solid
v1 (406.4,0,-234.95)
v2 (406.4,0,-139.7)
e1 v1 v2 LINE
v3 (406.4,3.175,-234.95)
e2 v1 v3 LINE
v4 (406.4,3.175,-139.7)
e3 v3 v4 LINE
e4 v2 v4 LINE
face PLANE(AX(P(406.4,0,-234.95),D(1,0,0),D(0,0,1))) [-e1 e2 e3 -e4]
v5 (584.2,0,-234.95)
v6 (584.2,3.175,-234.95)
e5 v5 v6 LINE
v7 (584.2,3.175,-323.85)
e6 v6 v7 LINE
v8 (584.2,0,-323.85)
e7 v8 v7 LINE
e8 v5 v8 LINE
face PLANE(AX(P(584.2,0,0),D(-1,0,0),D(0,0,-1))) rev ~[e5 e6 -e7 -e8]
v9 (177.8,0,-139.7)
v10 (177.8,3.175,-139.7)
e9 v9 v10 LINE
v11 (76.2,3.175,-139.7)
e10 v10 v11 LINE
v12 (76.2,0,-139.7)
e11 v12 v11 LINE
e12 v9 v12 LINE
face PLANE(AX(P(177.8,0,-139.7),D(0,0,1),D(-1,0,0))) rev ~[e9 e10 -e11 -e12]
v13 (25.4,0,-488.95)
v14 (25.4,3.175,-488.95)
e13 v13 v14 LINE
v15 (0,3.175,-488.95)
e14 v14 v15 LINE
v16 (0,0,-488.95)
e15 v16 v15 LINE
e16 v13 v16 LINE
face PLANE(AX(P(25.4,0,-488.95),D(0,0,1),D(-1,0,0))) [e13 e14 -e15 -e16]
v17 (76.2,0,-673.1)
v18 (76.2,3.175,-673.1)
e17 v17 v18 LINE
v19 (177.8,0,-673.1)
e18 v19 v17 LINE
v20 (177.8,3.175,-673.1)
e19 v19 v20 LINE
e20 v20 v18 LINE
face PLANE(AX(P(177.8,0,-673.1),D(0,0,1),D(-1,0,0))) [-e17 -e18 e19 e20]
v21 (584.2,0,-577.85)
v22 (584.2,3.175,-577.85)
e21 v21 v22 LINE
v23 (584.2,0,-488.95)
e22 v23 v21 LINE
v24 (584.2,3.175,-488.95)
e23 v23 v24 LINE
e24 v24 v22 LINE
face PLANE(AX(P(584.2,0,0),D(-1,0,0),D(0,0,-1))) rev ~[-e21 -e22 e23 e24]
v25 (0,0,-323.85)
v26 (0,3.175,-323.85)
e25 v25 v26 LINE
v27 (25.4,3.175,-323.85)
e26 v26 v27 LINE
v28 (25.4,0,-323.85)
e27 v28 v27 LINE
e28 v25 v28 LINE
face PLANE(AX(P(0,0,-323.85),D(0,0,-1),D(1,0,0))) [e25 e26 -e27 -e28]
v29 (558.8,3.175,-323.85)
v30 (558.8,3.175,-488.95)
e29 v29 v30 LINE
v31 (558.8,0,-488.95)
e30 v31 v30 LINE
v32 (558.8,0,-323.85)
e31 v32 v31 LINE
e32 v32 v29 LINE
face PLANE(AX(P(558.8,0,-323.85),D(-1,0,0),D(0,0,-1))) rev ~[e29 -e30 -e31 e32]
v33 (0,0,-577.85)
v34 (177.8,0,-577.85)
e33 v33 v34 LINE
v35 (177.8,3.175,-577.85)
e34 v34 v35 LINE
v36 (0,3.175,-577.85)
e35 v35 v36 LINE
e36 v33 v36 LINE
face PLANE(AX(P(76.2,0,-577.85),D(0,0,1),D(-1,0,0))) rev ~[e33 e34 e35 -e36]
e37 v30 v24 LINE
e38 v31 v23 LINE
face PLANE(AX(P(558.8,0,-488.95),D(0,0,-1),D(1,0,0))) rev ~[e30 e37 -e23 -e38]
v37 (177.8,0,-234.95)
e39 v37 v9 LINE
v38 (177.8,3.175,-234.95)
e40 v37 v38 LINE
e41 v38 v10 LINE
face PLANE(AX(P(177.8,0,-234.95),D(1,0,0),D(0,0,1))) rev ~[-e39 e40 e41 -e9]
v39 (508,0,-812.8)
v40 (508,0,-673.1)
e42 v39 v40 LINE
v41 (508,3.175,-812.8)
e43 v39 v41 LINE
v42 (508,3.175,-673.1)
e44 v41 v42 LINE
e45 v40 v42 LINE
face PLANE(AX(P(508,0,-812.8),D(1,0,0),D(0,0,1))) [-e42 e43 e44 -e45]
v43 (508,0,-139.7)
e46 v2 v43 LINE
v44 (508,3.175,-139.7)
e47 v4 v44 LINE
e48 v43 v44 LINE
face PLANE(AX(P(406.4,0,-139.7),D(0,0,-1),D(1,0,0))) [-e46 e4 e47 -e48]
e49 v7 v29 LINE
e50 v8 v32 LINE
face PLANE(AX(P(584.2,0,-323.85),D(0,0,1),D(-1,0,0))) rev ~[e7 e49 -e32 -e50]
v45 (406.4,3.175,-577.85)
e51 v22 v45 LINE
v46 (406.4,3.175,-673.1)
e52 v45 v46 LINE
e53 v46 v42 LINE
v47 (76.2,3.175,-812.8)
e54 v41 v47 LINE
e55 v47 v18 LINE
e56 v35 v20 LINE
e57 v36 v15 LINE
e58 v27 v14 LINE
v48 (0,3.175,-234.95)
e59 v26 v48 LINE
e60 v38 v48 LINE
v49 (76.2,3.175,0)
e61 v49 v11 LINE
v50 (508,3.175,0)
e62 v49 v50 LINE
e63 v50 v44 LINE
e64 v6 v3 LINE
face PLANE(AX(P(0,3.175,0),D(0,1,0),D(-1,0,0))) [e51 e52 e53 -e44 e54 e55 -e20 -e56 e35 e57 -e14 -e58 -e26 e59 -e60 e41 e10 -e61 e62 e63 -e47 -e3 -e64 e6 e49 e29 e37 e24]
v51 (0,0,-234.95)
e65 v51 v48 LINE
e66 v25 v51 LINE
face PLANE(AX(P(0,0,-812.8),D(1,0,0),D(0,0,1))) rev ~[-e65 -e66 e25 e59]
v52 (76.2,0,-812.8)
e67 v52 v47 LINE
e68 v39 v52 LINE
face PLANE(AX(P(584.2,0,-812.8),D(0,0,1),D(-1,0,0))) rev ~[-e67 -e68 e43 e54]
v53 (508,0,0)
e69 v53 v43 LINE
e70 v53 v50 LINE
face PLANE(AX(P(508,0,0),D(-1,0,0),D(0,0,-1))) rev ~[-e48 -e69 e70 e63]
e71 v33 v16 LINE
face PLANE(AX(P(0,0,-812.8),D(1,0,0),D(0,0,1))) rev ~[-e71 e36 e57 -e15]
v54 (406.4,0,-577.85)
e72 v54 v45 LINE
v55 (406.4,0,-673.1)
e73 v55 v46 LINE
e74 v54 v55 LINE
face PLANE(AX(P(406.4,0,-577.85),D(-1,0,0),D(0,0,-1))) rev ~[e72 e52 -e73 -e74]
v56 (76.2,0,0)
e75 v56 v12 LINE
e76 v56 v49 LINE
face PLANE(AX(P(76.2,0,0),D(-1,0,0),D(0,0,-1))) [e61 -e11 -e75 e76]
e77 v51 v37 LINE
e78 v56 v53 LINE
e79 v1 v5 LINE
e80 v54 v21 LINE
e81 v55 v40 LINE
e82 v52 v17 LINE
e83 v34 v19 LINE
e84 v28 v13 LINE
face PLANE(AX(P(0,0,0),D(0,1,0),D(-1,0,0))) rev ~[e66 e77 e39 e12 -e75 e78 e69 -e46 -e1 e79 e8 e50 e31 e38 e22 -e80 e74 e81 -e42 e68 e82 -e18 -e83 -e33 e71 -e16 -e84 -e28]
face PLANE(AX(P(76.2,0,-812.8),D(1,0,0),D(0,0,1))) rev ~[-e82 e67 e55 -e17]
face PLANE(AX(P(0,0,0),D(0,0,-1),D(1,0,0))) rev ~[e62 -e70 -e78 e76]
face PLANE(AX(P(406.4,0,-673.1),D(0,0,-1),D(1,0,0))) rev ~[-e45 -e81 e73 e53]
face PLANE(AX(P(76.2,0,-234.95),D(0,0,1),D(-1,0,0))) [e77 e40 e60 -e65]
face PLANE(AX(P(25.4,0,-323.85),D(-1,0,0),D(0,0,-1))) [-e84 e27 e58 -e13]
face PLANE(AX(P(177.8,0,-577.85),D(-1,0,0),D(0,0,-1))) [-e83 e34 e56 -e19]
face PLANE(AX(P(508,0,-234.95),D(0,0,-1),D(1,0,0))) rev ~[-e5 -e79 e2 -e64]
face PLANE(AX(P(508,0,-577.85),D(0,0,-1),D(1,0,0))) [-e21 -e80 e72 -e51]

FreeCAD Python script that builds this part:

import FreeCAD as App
import Part
import Sketcher

V = App.Vector
Q = App.Units.Quantity

doc = App.newDocument("Part")
body = doc.addObject("PartDesign::Body", "Body")

sketch1 = body.newObject("Sketcher::SketchObject", "Sketch")
sketch1.AttachmentSupport = (doc.getObject("XZ_Plane"), [""])
sketch1.MapMode = "FlatFace"
sketch1.addGeometry([
    Part.LineSegment(V(0, -813, 0), V(0, 0, 0)),
    Part.LineSegment(V(0, 0, 0), V(584, 0, 0)),
    Part.LineSegment(V(584, 0, 0), V(584, -813, 0)),
    Part.LineSegment(V(584, -813, 0), V(0, -813, 0)),
], False)
sketch1.addConstraint([
    Sketcher.Constraint("Coincident", 0, 2, 1, 1),
    Sketcher.Constraint("Coincident", 1, 2, 2, 1),
    Sketcher.Constraint("Coincident", 2, 2, 3, 1),
    Sketcher.Constraint("Coincident", 3, 2, 0, 1),
    Sketcher.Constraint("Vertical", 0),
    Sketcher.Constraint("Horizontal", 1),
    Sketcher.Constraint("Vertical", 2),
    Sketcher.Constraint("Horizontal", 3),
    Sketcher.Constraint("Coincident", 0, 2, -1, 1),
    Sketcher.Constraint("DistanceX", 1, 1, 1, 2, Q("23 in")),
    Sketcher.Constraint("DistanceY", 0, 1, 0, 2, Q("32 in")),
])
pad1 = body.newObject("PartDesign::Pad", "Pad")
pad1.Profile = sketch1
pad1.Length = Q("0.125 in")
pad1.Reversed = True

sketch2 = body.newObject("Sketcher::SketchObject", "Sketch001")
sketch2.AttachmentSupport = (doc.getObject("XZ_Plane"), [""])
sketch2.MapMode = "FlatFace"
sketch2.addGeometry([
    Part.LineSegment(V(76, 0, 0), V(0, 0, 0)),
    Part.LineSegment(V(0, 0, 0), V(0, -235, 0)),
    Part.LineSegment(V(0, -235, 0), V(178, -235, 0)),
    Part.LineSegment(V(178, -235, 0), V(178, -140, 0)),
    Part.LineSegment(V(178, -140, 0), V(76, -140, 0)),
    Part.LineSegment(V(76, -140, 0), V(76, 0, 0)),
    Part.LineSegment(V(584, 0, 0), V(508, 0, 0)),
    Part.LineSegment(V(508, 0, 0), V(508, -140, 0)),
    Part.LineSegment(V(508, -140, 0), V(406, -140, 0)),
    Part.LineSegment(V(406, -140, 0), V(406, -235, 0)),
    Part.LineSegment(V(406, -235, 0), V(584, -235, 0)),
    Part.LineSegment(V(584, -235, 0), V(584, 0, 0)),
    Part.LineSegment(V(25, -324, 0), V(0, -324, 0)),
    Part.LineSegment(V(0, -324, 0), V(0, -489, 0)),
    Part.LineSegment(V(0, -489, 0), V(25, -489, 0)),
    Part.LineSegment(V(25, -489, 0), V(25, -324, 0)),
    Part.LineSegment(V(0, -578, 0), V(0, -813, 0)),
    Part.LineSegment(V(0, -813, 0), V(76, -813, 0)),
    Part.LineSegment(V(76, -813, 0), V(76, -673, 0)),
    Part.LineSegment(V(76, -673, 0), V(178, -673, 0)),
    Part.LineSegment(V(178, -673, 0), V(178, -578, 0)),
    Part.LineSegment(V(178, -578, 0), V(0, -578, 0)),
    Part.LineSegment(V(584, -489, 0), V(584, -324, 0)),
    Part.LineSegment(V(584, -324, 0), V(559, -324, 0)),
    Part.LineSegment(V(559, -324, 0), V(559, -489, 0)),
    Part.LineSegment(V(559, -489, 0), V(584, -489, 0)),
    Part.LineSegment(V(584, -813, 0), V(584, -578, 0)),
    Part.LineSegment(V(584, -578, 0), V(406, -578, 0)),
    Part.LineSegment(V(406, -578, 0), V(406, -673, 0)),
    Part.LineSegment(V(406, -673, 0), V(508, -673, 0)),
    Part.LineSegment(V(508, -673, 0), V(508, -813, 0)),
    Part.LineSegment(V(508, -813, 0), V(584, -813, 0)),
], False)
sketch2.addConstraint([
    Sketcher.Constraint("Coincident", 0, 2, 1, 1),
    Sketcher.Constraint("Coincident", 1, 2, 2, 1),
    Sketcher.Constraint("Coincident", 2, 2, 3, 1),
    Sketcher.Constraint("Coincident", 3, 2, 4, 1),
    Sketcher.Constraint("Coincident", 4, 2, 5, 1),
    Sketcher.Constraint("Coincident", 5, 2, 0, 1),
    Sketcher.Constraint("Coincident", 6, 2, 7, 1),
    Sketcher.Constraint("Coincident", 7, 2, 8, 1),
    Sketcher.Constraint("Coincident", 8, 2, 9, 1),
    Sketcher.Constraint("Coincident", 9, 2, 10, 1),
    Sketcher.Constraint("Coincident", 10, 2, 11, 1),
    Sketcher.Constraint("Coincident", 11, 2, 6, 1),
    Sketcher.Constraint("Coincident", 12, 2, 13, 1),
    Sketcher.Constraint("Coincident", 13, 2, 14, 1),
    Sketcher.Constraint("Coincident", 14, 2, 15, 1),
    Sketcher.Constraint("Coincident", 15, 2, 12, 1),
    Sketcher.Constraint("Coincident", 16, 2, 17, 1),
    Sketcher.Constraint("Coincident", 17, 2, 18, 1),
    Sketcher.Constraint("Coincident", 18, 2, 19, 1),
    Sketcher.Constraint("Coincident", 19, 2, 20, 1),
    Sketcher.Constraint("Coincident", 20, 2, 21, 1),
    Sketcher.Constraint("Coincident", 21, 2, 16, 1),
    Sketcher.Constraint("Coincident", 22, 2, 23, 1),
    Sketcher.Constraint("Coincident", 23, 2, 24, 1),
    Sketcher.Constraint("Coincident", 24, 2, 25, 1),
    Sketcher.Constraint("Coincident", 25, 2, 22, 1),
    Sketcher.Constraint("Coincident", 26, 2, 27, 1),
    Sketcher.Constraint("Coincident", 27, 2, 28, 1),
    Sketcher.Constraint("Coincident", 28, 2, 29, 1),
    Sketcher.Constraint("Coincident", 29, 2, 30, 1),
    Sketcher.Constraint("Coincident", 30, 2, 31, 1),
    Sketcher.Constraint("Coincident", 31, 2, 26, 1),
    Sketcher.Constraint("Horizontal", 0),
    Sketcher.Constraint("Vertical", 1),
    Sketcher.Constraint("Horizontal", 2),
    Sketcher.Constraint("Vertical", 3),
    Sketcher.Constraint("Horizontal", 4),
    Sketcher.Constraint("Vertical", 5),
    Sketcher.Constraint("Horizontal", 6),
    Sketcher.Constraint("Vertical", 7),
    Sketcher.Constraint("Horizontal", 8),
    Sketcher.Constraint("Vertical", 9),
    Sketcher.Constraint("Horizontal", 10),
    Sketcher.Constraint("Vertical", 11),
    Sketcher.Constraint("Horizontal", 12),
    Sketcher.Constraint("Vertical", 13),
    Sketcher.Constraint("Horizontal", 14),
    Sketcher.Constraint("Vertical", 15),
    Sketcher.Constraint("Vertical", 16),
    Sketcher.Constraint("Horizontal", 17),
    Sketcher.Constraint("Vertical", 18),
    Sketcher.Constraint("Horizontal", 19),
    Sketcher.Constraint("Vertical", 20),
    Sketcher.Constraint("Horizontal", 21),
    Sketcher.Constraint("Vertical", 22),
    Sketcher.Constraint("Horizontal", 23),
    Sketcher.Constraint("Vertical", 24),
    Sketcher.Constraint("Horizontal", 25),
    Sketcher.Constraint("Vertical", 26),
    Sketcher.Constraint("Horizontal", 27),
    Sketcher.Constraint("Vertical", 28),
    Sketcher.Constraint("Horizontal", 29),
    Sketcher.Constraint("Vertical", 30),
    Sketcher.Constraint("Horizontal", 31),
    Sketcher.Constraint("Coincident", 0, 2, -1, 1),
    Sketcher.Constraint("PointOnObject", 6, 2, -1),
    Sketcher.Constraint("PointOnObject", 12, 2, -2),
    Sketcher.Constraint("PointOnObject", 16, 2, -2),
    Sketcher.Constraint("Horizontal", 4, 2, 7, 2),
    Sketcher.Constraint("Horizontal", 2, 2, 9, 2),
    Sketcher.Constraint("Horizontal", 15, 2, 22, 2),
    Sketcher.Constraint("Horizontal", 14, 2, 24, 2),
    Sketcher.Constraint("Horizontal", 21, 2, 26, 2),
    Sketcher.Constraint("Horizontal", 19, 2, 28, 2),
    Sketcher.Constraint("Horizontal", 17, 2, 30, 2),
    Sketcher.Constraint("Vertical", 5, 2, 17, 2),
    Sketcher.Constraint("Vertical", 3, 2, 19, 2),
    Sketcher.Constraint("Vertical", 11, 2, 22, 2),
    Sketcher.Constraint("Vertical", 25, 2, 26, 2),
    Sketcher.Constraint("Vertical", 9, 2, 27, 2),
    Sketcher.Constraint("Vertical", 7, 2, 29, 2),
    Sketcher.Constraint("Equal", 0, 6),
    Sketcher.Constraint("Equal", 4, 8),
    Sketcher.Constraint("Equal", 14, 23),
    Sketcher.Constraint("Equal", 11, 16),
    Sketcher.Constraint("Equal", 7, 18),
    Sketcher.Constraint("DistanceX", 0, 2, 0, 1, Q("3 in")),
    Sketcher.Constraint("DistanceX", 4, 2, 4, 1, Q("4 in")),
    Sketcher.Constraint("DistanceX", 12, 2, 12, 1, Q("1 in")),
    Sketcher.Constraint("DistanceY", 13, 2, 13, 1, Q("6.5 in")),
    Sketcher.Constraint("DistanceY", 1, 2, 1, 1, Q("9.25 in")),
    Sketcher.Constraint("DistanceY", 3, 1, 3, 2, Q("3.75 in")),
    Sketcher.Constraint("DistanceY", 12, 2, -1, 1, Q("12.75 in")),
    Sketcher.Constraint("DistanceY", 16, 2, 13, 2, Q("12.75 in")),
    Sketcher.Constraint("DistanceX", -1, 1, 6, 2, Q("20 in")),
])
pocket1 = body.newObject("PartDesign::Pocket", "Pocket")
pocket1.Profile = sketch2
pocket1.Length = Q("0.125 in")

doc.recompute()
